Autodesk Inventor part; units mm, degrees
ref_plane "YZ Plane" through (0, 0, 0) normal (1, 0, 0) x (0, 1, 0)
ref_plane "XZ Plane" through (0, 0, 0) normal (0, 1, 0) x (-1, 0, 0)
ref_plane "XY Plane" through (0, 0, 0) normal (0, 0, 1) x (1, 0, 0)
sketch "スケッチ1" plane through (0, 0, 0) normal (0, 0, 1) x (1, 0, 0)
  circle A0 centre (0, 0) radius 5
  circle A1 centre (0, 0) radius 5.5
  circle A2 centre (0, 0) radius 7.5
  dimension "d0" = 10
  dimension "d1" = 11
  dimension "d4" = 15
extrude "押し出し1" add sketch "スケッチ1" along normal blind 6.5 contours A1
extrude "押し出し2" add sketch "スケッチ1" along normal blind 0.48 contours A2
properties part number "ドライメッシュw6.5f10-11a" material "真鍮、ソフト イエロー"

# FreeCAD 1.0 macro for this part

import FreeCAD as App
import Part
import Sketcher

doc = App.newDocument("Part")
params = doc.addObject("Spreadsheet::Sheet", "Params")
for row, (alias, value) in enumerate([
    ("sketch1_diameter", "11 mm"),
    ("sketch1_diameter2", "10 mm"),
    ("pad1_length", "6.5 mm"),
    ("sketch2_diameter", "15 mm"),
    ("sketch2_diameter2", "11 mm"),
    ("pad2_length", "0.48 mm"),
], start=1):
    params.set(f"A{row}", alias)
    params.set(f"B{row}", "=" + value)
    params.setAlias(f"B{row}", alias)

body = doc.addObject("PartDesign::Body", "Body")

sketch1 = doc.addObject("Sketcher::SketchObject", "Sketch")
body.addObject(sketch1)
sketch1.AttachmentSupport = (doc.XY_Plane, [""])
sketch1.MapMode = "FlatFace"
sketch1.addGeometry([
    Part.Circle(App.Vector(0, 0, 0), App.Vector(0, 0, 1), 5.5),
    Part.Circle(App.Vector(0, 0, 0), App.Vector(0, 0, 1), 5),
], False)
sketch1.addConstraint([
    Sketcher.Constraint("Coincident", 0, 3, -1, 1),
    Sketcher.Constraint("Coincident", 1, 3, -1, 1),
    Sketcher.Constraint("Diameter", 0, 11.0),
    Sketcher.Constraint("Diameter", 1, 10.0),
])
sketch1.setExpression("Constraints[2]", "Params.sketch1_diameter")
sketch1.setExpression("Constraints[3]", "Params.sketch1_diameter2")
pad1 = doc.addObject("PartDesign::Pad", "Pad")
body.addObject(pad1)
pad1.Profile = sketch1
pad1.setExpression("Length", "Params.pad1_length")

sketch2 = doc.addObject("Sketcher::SketchObject", "Sketch001")
body.addObject(sketch2)
sketch2.AttachmentSupport = (doc.XY_Plane, [""])
sketch2.MapMode = "FlatFace"
sketch2.addGeometry([
    Part.Circle(App.Vector(0, 0, 0), App.Vector(0, 0, 1), 7.5),
    Part.Circle(App.Vector(0, 0, 0), App.Vector(0, 0, 1), 5.5),
], False)
sketch2.addConstraint([
    Sketcher.Constraint("Coincident", 0, 3, -1, 1),
    Sketcher.Constraint("Coincident", 1, 3, -1, 1),
    Sketcher.Constraint("Diameter", 0, 15.0),
    Sketcher.Constraint("Diameter", 1, 11.0),
])
sketch2.setExpression("Constraints[2]", "Params.sketch2_diameter")
sketch2.setExpression("Constraints[3]", "Params.sketch2_diameter2")
pad2 = doc.addObject("PartDesign::Pad", "Pad001")
body.addObject(pad2)
pad2.Profile = sketch2
pad2.setExpression("Length", "Params.pad2_length")

doc.recompute()
